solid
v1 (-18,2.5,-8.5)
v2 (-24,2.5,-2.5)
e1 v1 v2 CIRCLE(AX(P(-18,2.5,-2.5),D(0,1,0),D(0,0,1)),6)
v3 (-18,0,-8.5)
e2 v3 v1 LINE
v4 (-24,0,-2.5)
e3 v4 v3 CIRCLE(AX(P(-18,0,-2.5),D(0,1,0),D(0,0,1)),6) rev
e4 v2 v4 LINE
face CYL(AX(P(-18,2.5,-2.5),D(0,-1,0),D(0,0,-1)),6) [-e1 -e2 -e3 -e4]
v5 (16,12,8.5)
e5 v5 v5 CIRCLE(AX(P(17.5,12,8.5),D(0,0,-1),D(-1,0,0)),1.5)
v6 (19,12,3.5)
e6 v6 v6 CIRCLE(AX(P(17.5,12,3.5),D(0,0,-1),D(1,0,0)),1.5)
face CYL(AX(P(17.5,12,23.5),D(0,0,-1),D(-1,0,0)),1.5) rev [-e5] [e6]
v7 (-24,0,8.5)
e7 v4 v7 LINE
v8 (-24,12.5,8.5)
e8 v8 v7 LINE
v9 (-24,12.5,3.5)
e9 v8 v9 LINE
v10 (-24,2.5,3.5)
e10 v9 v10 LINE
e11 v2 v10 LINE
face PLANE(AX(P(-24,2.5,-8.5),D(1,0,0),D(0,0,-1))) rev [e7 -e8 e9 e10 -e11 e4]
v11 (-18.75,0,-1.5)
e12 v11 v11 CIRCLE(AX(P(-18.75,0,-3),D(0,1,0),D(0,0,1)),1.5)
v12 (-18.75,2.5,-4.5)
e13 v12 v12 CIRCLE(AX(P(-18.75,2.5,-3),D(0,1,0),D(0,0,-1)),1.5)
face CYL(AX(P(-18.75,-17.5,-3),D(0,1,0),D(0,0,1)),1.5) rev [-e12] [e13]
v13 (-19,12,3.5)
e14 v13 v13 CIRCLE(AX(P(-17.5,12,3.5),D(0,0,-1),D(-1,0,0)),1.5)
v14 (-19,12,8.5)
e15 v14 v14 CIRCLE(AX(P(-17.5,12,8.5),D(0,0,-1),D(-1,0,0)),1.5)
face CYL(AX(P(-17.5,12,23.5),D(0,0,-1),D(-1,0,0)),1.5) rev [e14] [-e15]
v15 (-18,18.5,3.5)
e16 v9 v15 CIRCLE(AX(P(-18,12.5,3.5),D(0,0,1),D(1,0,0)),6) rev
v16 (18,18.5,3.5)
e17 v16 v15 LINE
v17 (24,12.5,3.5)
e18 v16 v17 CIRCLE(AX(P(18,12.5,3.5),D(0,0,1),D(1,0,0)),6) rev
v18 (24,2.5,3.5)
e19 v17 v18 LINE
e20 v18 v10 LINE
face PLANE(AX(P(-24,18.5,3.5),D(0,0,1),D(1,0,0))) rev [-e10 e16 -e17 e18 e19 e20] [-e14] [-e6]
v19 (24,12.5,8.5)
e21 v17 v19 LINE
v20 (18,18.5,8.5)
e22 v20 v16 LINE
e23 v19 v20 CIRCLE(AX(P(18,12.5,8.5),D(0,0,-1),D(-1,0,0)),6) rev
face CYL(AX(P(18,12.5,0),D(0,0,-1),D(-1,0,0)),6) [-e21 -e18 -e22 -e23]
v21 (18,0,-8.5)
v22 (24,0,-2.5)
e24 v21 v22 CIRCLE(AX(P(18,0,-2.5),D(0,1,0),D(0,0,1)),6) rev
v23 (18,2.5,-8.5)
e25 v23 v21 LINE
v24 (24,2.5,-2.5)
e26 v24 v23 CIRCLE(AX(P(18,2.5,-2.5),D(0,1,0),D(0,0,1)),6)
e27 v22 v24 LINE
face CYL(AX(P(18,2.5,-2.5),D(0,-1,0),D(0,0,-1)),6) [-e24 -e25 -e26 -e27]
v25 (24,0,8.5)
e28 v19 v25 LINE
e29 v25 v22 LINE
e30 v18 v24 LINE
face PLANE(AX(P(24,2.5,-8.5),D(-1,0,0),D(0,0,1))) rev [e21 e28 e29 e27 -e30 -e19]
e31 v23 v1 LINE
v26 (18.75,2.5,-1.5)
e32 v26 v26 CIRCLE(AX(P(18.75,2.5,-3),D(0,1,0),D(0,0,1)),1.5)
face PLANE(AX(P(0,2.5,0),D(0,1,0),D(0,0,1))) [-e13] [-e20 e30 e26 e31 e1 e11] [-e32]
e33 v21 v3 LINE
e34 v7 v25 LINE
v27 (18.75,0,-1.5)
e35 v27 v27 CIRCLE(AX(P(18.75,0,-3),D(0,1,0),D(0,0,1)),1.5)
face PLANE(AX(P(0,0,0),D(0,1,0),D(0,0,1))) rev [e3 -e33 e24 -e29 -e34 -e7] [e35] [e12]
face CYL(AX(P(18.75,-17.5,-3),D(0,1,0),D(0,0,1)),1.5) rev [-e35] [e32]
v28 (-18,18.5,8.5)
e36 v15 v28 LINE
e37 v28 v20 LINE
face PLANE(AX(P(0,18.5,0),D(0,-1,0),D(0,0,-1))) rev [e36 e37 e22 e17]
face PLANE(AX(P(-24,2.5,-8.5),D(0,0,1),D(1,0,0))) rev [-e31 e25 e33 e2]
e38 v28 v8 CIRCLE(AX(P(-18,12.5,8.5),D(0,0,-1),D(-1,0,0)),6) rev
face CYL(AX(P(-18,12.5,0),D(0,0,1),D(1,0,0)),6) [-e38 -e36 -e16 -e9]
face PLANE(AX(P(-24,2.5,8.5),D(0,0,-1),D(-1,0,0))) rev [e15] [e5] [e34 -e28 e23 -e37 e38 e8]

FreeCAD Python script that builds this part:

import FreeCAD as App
import Part
import Sketcher

V = App.Vector


def edges_at(feature, points):
    """Names of the edges that pass closest to the given points."""
    edges = feature.Shape.Edges
    near = lambda p: min(range(len(edges)), key=lambda i: edges[i].distToShape(Part.Vertex(*p))[0])
    return sorted({f"Edge{near(p) + 1}" for p in points})


def add_polygon(sketch, points):
    """Adds a closed chain of lines whose ends are joined by coincident constraints."""
    first, n = sketch.GeometryCount, len(points)
    for a, b in zip(points, points[1:] + points[:1]):
        sketch.addGeometry(Part.LineSegment(App.Vector(*a, 0), App.Vector(*b, 0)), False)
    for i in range(n):
        sketch.addConstraint(Sketcher.Constraint("Coincident", first + i, 2, first + (i + 1) % n, 1))

doc = App.newDocument("Part")
body = doc.addObject("PartDesign::Body", "Body")

sketch1 = body.newObject("Sketcher::SketchObject", "Sketch")
sketch1.AttachmentSupport = (doc.getObject("XZ_Plane"), [""])
sketch1.MapMode = "FlatFace"
add_polygon(sketch1, [(-24, -8), (-24, 8), (24, 8), (24, -8)])
sketch1.addConstraint(Sketcher.Constraint("Vertical", 0))
sketch1.addConstraint(Sketcher.Constraint("Horizontal", 1))
sketch1.addConstraint(Sketcher.Constraint("Vertical", 2))
sketch1.addConstraint(Sketcher.Constraint("Horizontal", 3))
sketch1.addConstraint(Sketcher.Constraint("Symmetric", 0, 2, 2, 2, -1, 1))
sketch1.addConstraint(Sketcher.Constraint("DistanceX", 1, 1, 1, 2, 48.0))
sketch1.addConstraint(Sketcher.Constraint("DistanceY", 0, 1, 0, 2, 17.0))
pad1 = body.newObject("PartDesign::Pad", "Pad")
pad1.Profile = sketch1
pad1.Length = 2.5
pad1.Reversed = True

sketch2 = body.newObject("Sketcher::SketchObject", "Sketch001")
sketch2.AttachmentSupport = (doc.getObject("XZ_Plane"), [""])
sketch2.MapMode = "FlatFace"
sketch2.AttachmentOffset = App.Placement(V(0, 0, -2.5), App.Rotation())
add_polygon(sketch2, [(-24, 4), (-24, 8), (24, 8), (24, 4)])
sketch2.addConstraint(Sketcher.Constraint("Vertical", 0))
sketch2.addConstraint(Sketcher.Constraint("Horizontal", 1))
sketch2.addConstraint(Sketcher.Constraint("Vertical", 2))
sketch2.addConstraint(Sketcher.Constraint("Horizontal", 3))
sketch2.addConstraint(Sketcher.Constraint("DistanceX", 1, 1, 1, 2, 48.0))
sketch2.addConstraint(Sketcher.Constraint("DistanceY", 0, 1, 0, 2, 5.0))
sketch2.addConstraint(Sketcher.Constraint("DistanceX", 0, 2, -1, 1, 24.0))
sketch2.addConstraint(Sketcher.Constraint("DistanceY", -1, 1, 0, 2, 8.5))
pad2 = body.newObject("PartDesign::Pad", "Pad001")
pad2.Profile = sketch2
pad2.Length = 16
pad2.Reversed = True

sketch3 = body.newObject("Sketcher::SketchObject", "Sketch002")
sketch3.AttachmentSupport = (doc.getObject("XZ_Plane"), [""])
sketch3.MapMode = "FlatFace"
sketch3.AttachmentOffset = App.Placement(V(0, 0, -2.5), App.Rotation())
sketch3.addGeometry(Part.Circle(V(18.8, -3, 0), V(0, 0, 1), 1.5), False)
sketch3.addGeometry(Part.Circle(V(-18.8, -3, 0), V(0, 0, 1), 1.5), False)
sketch3.addConstraint(Sketcher.Constraint("Equal", 0, 1))
sketch3.addConstraint(Sketcher.Constraint("Symmetric", 0, 3, 1, 3, -2))
sketch3.addConstraint(Sketcher.Constraint("Diameter", 0, 3.0))
sketch3.addConstraint(Sketcher.Constraint("DistanceY", 0, 3, -1, 1, 3.0))
sketch3.addConstraint(Sketcher.Constraint("DistanceX", 1, 3, 0, 3, 37.5))
pocket1 = body.newObject("PartDesign::Pocket", "Pocket")
pocket1.Profile = sketch3
pocket1.Length = 20
pocket1.Reversed = True
doc.recompute()

fillet = body.newObject("PartDesign::Fillet", "Fillet")
fillet.Base = (pocket1, edges_at(pocket1, [
    (24, 18.5, 6),
    (-24, 18.5, 6),
    (-24, 1.25, -8.5),
    (24, 1.25, -8.5),
]))
fillet.Radius = 6

sketch4 = body.newObject("Sketcher::SketchObject", "Sketch003")
sketch4.AttachmentSupport = (doc.getObject("XY_Plane"), [""])
sketch4.MapMode = "FlatFace"
sketch4.AttachmentOffset = App.Placement(V(0, 0, 3.5), App.Rotation())
sketch4.addGeometry(Part.Circle(V(-17.5, 12, 0), V(0, 0, 1), 1.5), False)
sketch4.addGeometry(Part.Circle(V(17.5, 12, 0), V(0, 0, 1), 1.5), False)
sketch4.addConstraint(Sketcher.Constraint("Equal", 0, 1))
sketch4.addConstraint(Sketcher.Constraint("Symmetric", 0, 3, 1, 3, -2))
sketch4.addConstraint(Sketcher.Constraint("Diameter", 0, 3.0))
sketch4.addConstraint(Sketcher.Constraint("DistanceY", -1, 1, 0, 3, 12.0))
sketch4.addConstraint(Sketcher.Constraint("DistanceX", 0, 3, 1, 3, 35.0))
pocket2 = body.newObject("PartDesign::Pocket", "Pocket001")
pocket2.Profile = sketch4
pocket2.Length = 20
pocket2.Reversed = True

doc.recompute()
